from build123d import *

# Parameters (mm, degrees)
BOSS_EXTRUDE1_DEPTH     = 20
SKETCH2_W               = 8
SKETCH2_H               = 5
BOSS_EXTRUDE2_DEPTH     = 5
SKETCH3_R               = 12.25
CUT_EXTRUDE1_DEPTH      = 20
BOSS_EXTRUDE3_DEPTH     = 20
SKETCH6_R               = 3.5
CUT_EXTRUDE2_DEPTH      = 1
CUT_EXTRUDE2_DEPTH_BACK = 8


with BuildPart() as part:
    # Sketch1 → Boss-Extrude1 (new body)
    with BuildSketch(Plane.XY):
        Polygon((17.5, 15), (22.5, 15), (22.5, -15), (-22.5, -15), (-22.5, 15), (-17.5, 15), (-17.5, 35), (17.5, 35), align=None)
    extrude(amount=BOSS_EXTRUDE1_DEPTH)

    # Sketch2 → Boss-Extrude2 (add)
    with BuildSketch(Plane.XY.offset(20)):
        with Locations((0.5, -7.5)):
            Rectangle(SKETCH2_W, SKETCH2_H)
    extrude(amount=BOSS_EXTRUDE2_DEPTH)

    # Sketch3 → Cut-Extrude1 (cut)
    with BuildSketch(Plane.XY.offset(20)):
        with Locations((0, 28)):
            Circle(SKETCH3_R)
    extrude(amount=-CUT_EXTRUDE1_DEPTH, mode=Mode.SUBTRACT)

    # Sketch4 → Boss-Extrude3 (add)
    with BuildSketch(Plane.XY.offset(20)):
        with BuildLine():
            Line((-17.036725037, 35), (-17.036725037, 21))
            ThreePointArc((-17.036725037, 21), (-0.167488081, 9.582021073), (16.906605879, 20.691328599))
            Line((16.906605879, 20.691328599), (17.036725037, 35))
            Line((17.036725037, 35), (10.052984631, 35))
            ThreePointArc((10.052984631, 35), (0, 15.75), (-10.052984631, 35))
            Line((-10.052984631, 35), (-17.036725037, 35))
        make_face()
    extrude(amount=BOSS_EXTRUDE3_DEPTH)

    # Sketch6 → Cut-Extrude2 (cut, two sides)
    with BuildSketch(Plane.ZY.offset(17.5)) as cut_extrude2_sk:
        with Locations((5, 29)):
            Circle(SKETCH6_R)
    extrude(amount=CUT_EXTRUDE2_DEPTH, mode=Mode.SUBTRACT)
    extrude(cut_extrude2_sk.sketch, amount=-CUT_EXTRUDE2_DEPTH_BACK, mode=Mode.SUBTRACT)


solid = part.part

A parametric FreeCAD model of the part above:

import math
import FreeCAD as App
import Part
import Sketcher
from FreeCAD import Vector

doc = App.newDocument("Part")
params = doc.addObject("Spreadsheet::Sheet", "Params")
for row, (alias, value) in enumerate([
    ("sketch1_width", "5 mm"),
    ("sketch1_width2", "35 mm"),
    ("sketch1_height", "20 mm"),
    ("sketch1_height2", "30 mm"),
    ("pad1_length", "20 mm"),
    ("sketch2_width", "8 mm"),
    ("sketch2_height", "5 mm"),
    ("pad2_length", "5 mm"),
    ("sketch3_diameter", "24.5 mm"),
    ("pocket1_length", "20 mm"),
    ("sketch4_height", "14 mm"),
    ("sketch4_radius", "12.25 mm"),
    ("pad3_length", "20 mm"),
    ("sketch5_diameter", "7 mm"),
    ("pocket2_length", "1 mm"),
    ("pocket2_length2", "8 mm"),
], start=1):
    params.set(f"A{row}", alias)
    params.set(f"B{row}", "=" + value)
    params.setAlias(f"B{row}", alias)

body = doc.addObject("PartDesign::Body", "Body")

# Sketch on XY plane
sketch1 = doc.addObject("Sketcher::SketchObject", "Sketch")
body.addObject(sketch1)
sketch1.AttachmentSupport = (doc.XY_Plane, [""])
sketch1.MapMode = "FlatFace"
sketch1.addGeometry([
    Part.LineSegment(Vector(22.5, 15, 0), Vector(17.5, 15, 0)),  # 0
    Part.LineSegment(Vector(17.5, 15, 0), Vector(17.5, 35, 0)),  # 1
    Part.LineSegment(Vector(17.5, 35, 0), Vector(-17.5, 35, 0)),  # 2
    Part.LineSegment(Vector(-17.5, 35, 0), Vector(-17.5, 15, 0)),  # 3
    Part.LineSegment(Vector(-17.5, 15, 0), Vector(-22.5, 15, 0)),  # 4
    Part.LineSegment(Vector(-22.5, 15, 0), Vector(-22.5, -15, 0)),  # 5
    Part.LineSegment(Vector(-22.5, -15, 0), Vector(22.5, -15, 0)),  # 6
    Part.LineSegment(Vector(22.5, -15, 0), Vector(22.5, 15, 0)),  # 7
], False)
sketch1.addConstraint([
    Sketcher.Constraint("Coincident", 0, 2, 1, 1),
    Sketcher.Constraint("Coincident", 1, 2, 2, 1),
    Sketcher.Constraint("Coincident", 2, 2, 3, 1),
    Sketcher.Constraint("Coincident", 3, 2, 4, 1),
    Sketcher.Constraint("Coincident", 4, 2, 5, 1),
    Sketcher.Constraint("Coincident", 5, 2, 6, 1),
    Sketcher.Constraint("Coincident", 6, 2, 7, 1),
    Sketcher.Constraint("Coincident", 7, 2, 0, 1),
    Sketcher.Constraint("Horizontal", 0),
    Sketcher.Constraint("Vertical", 1),
    Sketcher.Constraint("Horizontal", 2),
    Sketcher.Constraint("Vertical", 3),
    Sketcher.Constraint("Horizontal", 4),
    Sketcher.Constraint("Vertical", 5),
    Sketcher.Constraint("Horizontal", 6),
    Sketcher.Constraint("Vertical", 7),
    Sketcher.Constraint("Symmetric", 4, 2, 6, 2, -1, 1),
    Sketcher.Constraint("Symmetric", 0, 2, 3, 2, -2),
    Sketcher.Constraint("DistanceX", 0, 2, 0, 1, 5.0),
    Sketcher.Constraint("DistanceX", 2, 2, 2, 1, 35.0),
    Sketcher.Constraint("DistanceY", 1, 1, 1, 2, 20.0),
    Sketcher.Constraint("DistanceY", 5, 2, 5, 1, 30.0),
])
sketch1.setExpression("Constraints[18]", "Params.sketch1_width")
sketch1.setExpression("Constraints[19]", "Params.sketch1_width2")
sketch1.setExpression("Constraints[20]", "Params.sketch1_height")
sketch1.setExpression("Constraints[21]", "Params.sketch1_height2")
pad1 = doc.addObject("PartDesign::Pad", "Pad")
body.addObject(pad1)
pad1.Profile = sketch1
pad1.setExpression("Length", "Params.pad1_length")

# Sketch on XY plane
sketch2 = doc.addObject("Sketcher::SketchObject", "Sketch001")
body.addObject(sketch2)
sketch2.AttachmentSupport = (doc.XY_Plane, [""])
sketch2.MapMode = "FlatFace"
sketch2.AttachmentOffset = App.Placement(Vector(0, 0, 20), App.Rotation())
sketch2.addGeometry([
    Part.LineSegment(Vector(-3.5, -5, 0), Vector(-3.5, -10, 0)),
    Part.LineSegment(Vector(-3.5, -10, 0), Vector(4.5, -10, 0)),
    Part.LineSegment(Vector(4.5, -10, 0), Vector(4.5, -5, 0)),
    Part.LineSegment(Vector(4.5, -5, 0), Vector(-3.5, -5, 0)),
], False)
sketch2.addConstraint([
    Sketcher.Constraint("Coincident", 0, 2, 1, 1),
    Sketcher.Constraint("Coincident", 1, 2, 2, 1),
    Sketcher.Constraint("Coincident", 2, 2, 3, 1),
    Sketcher.Constraint("Coincident", 3, 2, 0, 1),
    Sketcher.Constraint("Vertical", 0),
    Sketcher.Constraint("Horizontal", 1),
    Sketcher.Constraint("Vertical", 2),
    Sketcher.Constraint("Horizontal", 3),
    Sketcher.Constraint("DistanceX", 1, 1, 1, 2, 8.0),
    Sketcher.Constraint("DistanceY", 0, 2, 0, 1, 5.0),
    Sketcher.Constraint("DistanceY", 0, 2, -1, 1, 10.0),
    Sketcher.Constraint("DistanceX", 0, 2, -1, 1, 3.5),
])
sketch2.setExpression("Constraints[8]", "Params.sketch2_width")
sketch2.setExpression("Constraints[9]", "Params.sketch2_height")
pad2 = doc.addObject("PartDesign::Pad", "Pad001")
body.addObject(pad2)
pad2.Profile = sketch2
pad2.setExpression("Length", "Params.pad2_length")

# Sketch on XY plane
sketch3 = doc.addObject("Sketcher::SketchObject", "Sketch002")
body.addObject(sketch3)
sketch3.AttachmentSupport = (doc.XY_Plane, [""])
sketch3.MapMode = "FlatFace"
sketch3.AttachmentOffset = App.Placement(Vector(0, 0, 20), App.Rotation())
sketch3.addGeometry(Part.Circle(Vector(0, 28, 0), Vector(0, 0, 1), 12.25), False)
sketch3.addConstraint([
    Sketcher.Constraint("PointOnObject", 0, 3, -2),
    Sketcher.Constraint("Diameter", 0, 24.5),
    Sketcher.Constraint("DistanceY", -1, 1, 0, 3, 28.0),
])
sketch3.setExpression("Constraints[1]", "Params.sketch3_diameter")
pocket1 = doc.addObject("PartDesign::Pocket", "Pocket")
body.addObject(pocket1)
pocket1.Profile = sketch3
pocket1.setExpression("Length", "Params.pocket1_length")

# Sketch on XY plane
sketch4 = doc.addObject("Sketcher::SketchObject", "Sketch003")
body.addObject(sketch4)
sketch4.AttachmentSupport = (doc.XY_Plane, [""])
sketch4.MapMode = "FlatFace"
sketch4.AttachmentOffset = App.Placement(Vector(0, 0, 20), App.Rotation())
sketch4.addGeometry([
    Part.LineSegment(Vector(-17.036725, 35, 0), Vector(-17.036725, 21, 0)),  # 0
    Part.ArcOfCircle(Part.Circle(Vector(0, 28, 0), Vector(0, 0, 1), 18.41874), math.radians(-157.663362), math.radians(-23.378673)),  # 1
    Part.LineSegment(Vector(16.906606, 20.691329, 0), Vector(17.036725, 35, 0)),  # 2
    Part.LineSegment(Vector(17.036725, 35, 0), Vector(10.052985, 35, 0)),  # 3
    Part.ArcOfCircle(Part.Circle(Vector(0, 28, 0), Vector(0, 0, 1), 12.25), math.radians(145.150095), math.radians(394.849905)),  # 4
    Part.LineSegment(Vector(-10.052985, 35, 0), Vector(-17.036725, 35, 0)),  # 5
], False)
sketch4.addConstraint([
    Sketcher.Constraint("Coincident", 0, 2, 1, 1),
    Sketcher.Constraint("Coincident", 1, 2, 2, 1),
    Sketcher.Constraint("Coincident", 2, 2, 3, 1),
    Sketcher.Constraint("Coincident", 3, 2, 4, 2),
    Sketcher.Constraint("Coincident", 4, 1, 5, 1),
    Sketcher.Constraint("Coincident", 5, 2, 0, 1),
    Sketcher.Constraint("Vertical", 0),
    Sketcher.Constraint("Horizontal", 3),
    Sketcher.Constraint("Horizontal", 5),
    Sketcher.Constraint("Coincident", 4, 3, 1, 3),
    Sketcher.Constraint("Symmetric", 3, 2, 4, 1, -2),
    Sketcher.Constraint("Equal", 3, 5),
    Sketcher.Constraint("DistanceY", 0, 2, 0, 1, 14.0),
    Sketcher.Constraint("Radius", 4, 12.25),
    Sketcher.Constraint("DistanceY", -1, 1, 1, 3, 28.0),
    Sketcher.Constraint("DistanceY", -1, 1, 0, 2, 21.0),
    Sketcher.Constraint("Radius", 1, 18.41874),
    Sketcher.Constraint("DistanceY", -1, 1, 1, 2, 20.691329),
])
sketch4.setExpression("Constraints[12]", "Params.sketch4_height")
sketch4.setExpression("Constraints[13]", "Params.sketch4_radius")
pad3 = doc.addObject("PartDesign::Pad", "Pad002")
body.addObject(pad3)
pad3.Profile = sketch4
pad3.setExpression("Length", "Params.pad3_length")

# Sketch on YZ plane
sketch5 = doc.addObject("Sketcher::SketchObject", "Sketch004")
body.addObject(sketch5)
sketch5.AttachmentSupport = (doc.YZ_Plane, [""])
sketch5.MapMode = "FlatFace"
sketch5.AttachmentOffset = App.Placement(Vector(0, 0, -17.5), App.Rotation())
sketch5.addGeometry(Part.Circle(Vector(29, 5, 0), Vector(0, 0, 1), 3.5), False)
sketch5.addConstraint([
    Sketcher.Constraint("Diameter", 0, 7.0),
    Sketcher.Constraint("DistanceX", -1, 1, 0, 3, 29.0),
    Sketcher.Constraint("DistanceY", -1, 1, 0, 3, 5.0),
])
sketch5.setExpression("Constraints[0]", "Params.sketch5_diameter")
pocket2 = doc.addObject("PartDesign::Pocket", "Pocket001")
body.addObject(pocket2)
pocket2.Profile = sketch5
pocket2.Type = "TwoLengths"
pocket2.setExpression("Length", "Params.pocket2_length")
pocket2.setExpression("Length2", "Params.pocket2_length2")

doc.recompute()
